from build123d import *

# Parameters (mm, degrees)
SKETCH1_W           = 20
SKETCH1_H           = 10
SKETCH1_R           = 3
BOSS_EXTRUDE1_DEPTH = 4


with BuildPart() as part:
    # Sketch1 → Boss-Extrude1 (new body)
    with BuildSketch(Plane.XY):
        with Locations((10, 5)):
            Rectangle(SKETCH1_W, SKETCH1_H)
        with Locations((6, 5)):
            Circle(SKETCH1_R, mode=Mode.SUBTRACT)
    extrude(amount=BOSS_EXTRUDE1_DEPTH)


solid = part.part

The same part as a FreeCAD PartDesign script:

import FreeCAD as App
import Part
import Sketcher
from FreeCAD import Vector


def add_polygon(sketch, points):
    """Adds a closed chain of lines whose ends are joined by coincident constraints."""
    first, n = sketch.GeometryCount, len(points)
    for a, b in zip(points, points[1:] + points[:1]):
        sketch.addGeometry(Part.LineSegment(App.Vector(*a, 0), App.Vector(*b, 0)), False)
    for i in range(n):
        sketch.addConstraint(Sketcher.Constraint("Coincident", first + i, 2, first + (i + 1) % n, 1))

doc = App.newDocument("Part")
body = doc.addObject("PartDesign::Body", "Body")

# Sketch on XY plane
sketch1 = doc.addObject("Sketcher::SketchObject", "Sketch")
body.addObject(sketch1)
sketch1.AttachmentSupport = (doc.XY_Plane, [""])
sketch1.MapMode = "FlatFace"
add_polygon(sketch1, [(0, 10), (0, 0), (20, 0), (20, 10)])  # lines 0-3
sketch1.addGeometry(Part.Circle(Vector(6, 5, 0), Vector(0, 0, 1), 3), False)  # 4
sketch1.addConstraint([
    Sketcher.Constraint("Vertical", 0),
    Sketcher.Constraint("Horizontal", 1),
    Sketcher.Constraint("Vertical", 2),
    Sketcher.Constraint("Horizontal", 3),
    Sketcher.Constraint("Coincident", 0, 2, -1, 1),
    Sketcher.Constraint("Diameter", 4, 6.0),
    Sketcher.Constraint("DistanceX", 1, 1, 1, 2, 20.0),
    Sketcher.Constraint("DistanceY", 0, 2, 0, 1, 10.0),
    Sketcher.Constraint("DistanceX", -1, 1, 4, 3, 6.0),
    Sketcher.Constraint("DistanceY", -1, 1, 4, 3, 5.0),
])
pad1 = doc.addObject("PartDesign::Pad", "Pad")
body.addObject(pad1)
pad1.Profile = sketch1
pad1.Length = 4

doc.recompute()
